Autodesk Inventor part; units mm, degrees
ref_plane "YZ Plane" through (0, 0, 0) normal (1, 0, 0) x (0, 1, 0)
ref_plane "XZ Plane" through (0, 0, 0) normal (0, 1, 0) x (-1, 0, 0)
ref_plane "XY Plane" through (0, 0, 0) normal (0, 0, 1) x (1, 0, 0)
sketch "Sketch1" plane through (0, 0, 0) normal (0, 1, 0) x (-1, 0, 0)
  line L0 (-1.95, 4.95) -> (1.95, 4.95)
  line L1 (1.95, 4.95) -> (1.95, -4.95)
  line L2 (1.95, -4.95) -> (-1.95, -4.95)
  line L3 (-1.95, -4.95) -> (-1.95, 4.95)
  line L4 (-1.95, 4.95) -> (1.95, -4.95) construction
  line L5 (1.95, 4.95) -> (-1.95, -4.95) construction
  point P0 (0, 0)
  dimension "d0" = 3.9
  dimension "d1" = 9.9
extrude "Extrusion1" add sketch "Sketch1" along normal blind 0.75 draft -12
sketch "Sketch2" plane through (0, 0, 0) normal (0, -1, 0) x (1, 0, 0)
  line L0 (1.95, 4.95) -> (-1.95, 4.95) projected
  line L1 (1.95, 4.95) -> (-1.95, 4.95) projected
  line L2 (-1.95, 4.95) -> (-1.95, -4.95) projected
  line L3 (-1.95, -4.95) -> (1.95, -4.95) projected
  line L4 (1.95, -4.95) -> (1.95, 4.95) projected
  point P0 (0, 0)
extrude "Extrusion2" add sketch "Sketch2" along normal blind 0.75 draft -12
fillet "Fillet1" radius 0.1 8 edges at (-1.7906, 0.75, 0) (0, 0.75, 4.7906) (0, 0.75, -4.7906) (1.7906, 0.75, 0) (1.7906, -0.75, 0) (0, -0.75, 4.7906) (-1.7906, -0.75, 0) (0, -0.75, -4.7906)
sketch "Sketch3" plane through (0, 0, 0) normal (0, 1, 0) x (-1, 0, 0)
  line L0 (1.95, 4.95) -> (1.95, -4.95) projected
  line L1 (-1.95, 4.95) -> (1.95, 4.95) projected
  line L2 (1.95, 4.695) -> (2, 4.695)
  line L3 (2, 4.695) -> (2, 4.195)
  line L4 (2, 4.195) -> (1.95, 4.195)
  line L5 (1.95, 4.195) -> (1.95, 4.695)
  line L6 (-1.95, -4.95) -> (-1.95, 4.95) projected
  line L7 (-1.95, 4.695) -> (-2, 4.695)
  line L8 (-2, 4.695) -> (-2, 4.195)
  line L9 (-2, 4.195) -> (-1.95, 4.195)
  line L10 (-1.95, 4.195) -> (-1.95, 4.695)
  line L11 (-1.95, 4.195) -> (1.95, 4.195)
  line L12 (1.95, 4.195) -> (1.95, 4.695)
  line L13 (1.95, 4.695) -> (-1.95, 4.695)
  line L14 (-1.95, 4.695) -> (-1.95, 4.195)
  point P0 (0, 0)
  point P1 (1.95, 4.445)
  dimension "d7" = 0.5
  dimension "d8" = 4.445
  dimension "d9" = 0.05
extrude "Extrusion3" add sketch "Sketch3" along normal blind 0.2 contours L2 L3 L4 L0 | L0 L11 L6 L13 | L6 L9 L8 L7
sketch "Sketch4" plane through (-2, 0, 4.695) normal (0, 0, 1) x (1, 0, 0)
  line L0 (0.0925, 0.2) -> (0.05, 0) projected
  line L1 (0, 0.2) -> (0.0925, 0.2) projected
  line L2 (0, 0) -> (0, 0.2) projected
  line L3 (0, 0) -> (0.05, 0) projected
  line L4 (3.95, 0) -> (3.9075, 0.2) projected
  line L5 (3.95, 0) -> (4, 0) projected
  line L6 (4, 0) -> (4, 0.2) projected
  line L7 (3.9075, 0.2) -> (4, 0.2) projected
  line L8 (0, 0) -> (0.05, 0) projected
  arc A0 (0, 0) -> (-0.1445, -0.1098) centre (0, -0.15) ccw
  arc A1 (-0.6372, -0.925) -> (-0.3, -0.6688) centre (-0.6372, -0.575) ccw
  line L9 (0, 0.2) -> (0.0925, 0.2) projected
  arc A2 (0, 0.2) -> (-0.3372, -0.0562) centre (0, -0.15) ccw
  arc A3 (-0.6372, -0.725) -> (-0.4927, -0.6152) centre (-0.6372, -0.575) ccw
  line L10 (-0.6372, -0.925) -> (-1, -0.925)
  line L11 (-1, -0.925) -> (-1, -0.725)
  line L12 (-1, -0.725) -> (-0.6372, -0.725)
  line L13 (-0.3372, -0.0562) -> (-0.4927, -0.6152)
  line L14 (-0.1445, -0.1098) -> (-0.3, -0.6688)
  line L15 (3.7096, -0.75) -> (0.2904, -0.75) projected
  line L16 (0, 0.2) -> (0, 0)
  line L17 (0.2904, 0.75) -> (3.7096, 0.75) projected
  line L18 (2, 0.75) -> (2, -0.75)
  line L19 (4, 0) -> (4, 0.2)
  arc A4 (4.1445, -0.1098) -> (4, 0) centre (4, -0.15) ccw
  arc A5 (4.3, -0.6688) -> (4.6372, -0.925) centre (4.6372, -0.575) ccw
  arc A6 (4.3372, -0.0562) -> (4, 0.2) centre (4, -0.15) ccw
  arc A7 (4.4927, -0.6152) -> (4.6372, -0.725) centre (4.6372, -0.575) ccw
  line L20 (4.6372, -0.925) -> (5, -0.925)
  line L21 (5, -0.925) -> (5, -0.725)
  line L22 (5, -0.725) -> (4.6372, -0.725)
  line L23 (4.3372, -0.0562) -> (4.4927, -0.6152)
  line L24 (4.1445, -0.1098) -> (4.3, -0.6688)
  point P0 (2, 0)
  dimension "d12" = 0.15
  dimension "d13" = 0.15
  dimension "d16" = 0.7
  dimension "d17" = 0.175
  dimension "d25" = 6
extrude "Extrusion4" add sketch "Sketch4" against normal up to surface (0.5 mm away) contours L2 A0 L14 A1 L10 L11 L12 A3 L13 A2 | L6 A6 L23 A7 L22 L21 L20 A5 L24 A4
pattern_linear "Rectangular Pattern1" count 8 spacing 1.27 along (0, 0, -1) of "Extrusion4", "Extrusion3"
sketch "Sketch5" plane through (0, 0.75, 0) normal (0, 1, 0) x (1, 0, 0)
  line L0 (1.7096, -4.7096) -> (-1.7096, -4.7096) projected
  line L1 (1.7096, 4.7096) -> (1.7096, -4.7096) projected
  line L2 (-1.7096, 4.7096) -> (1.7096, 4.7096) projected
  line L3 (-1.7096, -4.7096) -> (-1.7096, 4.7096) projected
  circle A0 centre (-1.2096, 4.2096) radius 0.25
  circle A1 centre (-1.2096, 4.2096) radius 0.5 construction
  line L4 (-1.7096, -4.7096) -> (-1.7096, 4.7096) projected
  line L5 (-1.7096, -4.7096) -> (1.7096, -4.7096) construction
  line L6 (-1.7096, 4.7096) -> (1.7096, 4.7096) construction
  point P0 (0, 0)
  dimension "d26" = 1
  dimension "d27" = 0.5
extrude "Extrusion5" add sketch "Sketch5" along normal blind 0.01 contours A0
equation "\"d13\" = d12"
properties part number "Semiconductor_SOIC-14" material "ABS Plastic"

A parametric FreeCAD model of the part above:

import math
import FreeCAD as App
import Part
import Sketcher

V = App.Vector


def edges_at(feature, points):
    """Names of the edges that pass closest to the given points."""
    edges = feature.Shape.Edges
    near = lambda p: min(range(len(edges)), key=lambda i: edges[i].distToShape(Part.Vertex(*p))[0])
    return sorted({f"Edge{near(p) + 1}" for p in points})


def add_polygon(sketch, points):
    """Adds a closed chain of lines whose ends are joined by coincident constraints."""
    first, n = sketch.GeometryCount, len(points)
    for a, b in zip(points, points[1:] + points[:1]):
        sketch.addGeometry(Part.LineSegment(App.Vector(*a, 0), App.Vector(*b, 0)), False)
    for i in range(n):
        sketch.addConstraint(Sketcher.Constraint("Coincident", first + i, 2, first + (i + 1) % n, 1))

doc = App.newDocument("Part")
params = doc.addObject("Spreadsheet::Sheet", "Params")
for row, (alias, value) in enumerate([
    ("sketch1_width", "3.9 mm"),
    ("sketch1_height", "9.9 mm"),
    ("pad1_length", "0.75 mm"),
    ("pad1_taper", "-12 deg"),
    ("sketch2_width", "3.9 mm"),
    ("sketch2_height", "9.9 mm"),
    ("pad2_length", "0.75 mm"),
    ("pad2_taper", "-12 deg"),
    ("fillet_radius", "0.1 mm"),
    ("sketch3_height", "0.5 mm"),
    ("sketch3_width", "4 mm"),
    ("pad3_length", "0.2 mm"),
    ("sketch4_radius", "0.35 mm"),
    ("sketch4_radius2", "0.15 mm"),
    ("pad4_length", "0.5 mm"),
    ("linearpattern_pitch", "1.27 mm"),
    ("sketch5_diameter", "0.5 mm"),
    ("pad5_length", "0.01 mm"),
], start=1):
    params.set(f"A{row}", alias)
    params.set(f"B{row}", "=" + value)
    params.setAlias(f"B{row}", alias)

body = doc.addObject("PartDesign::Body", "Body")

sketch1 = doc.addObject("Sketcher::SketchObject", "Sketch")
body.addObject(sketch1)
sketch1.AttachmentSupport = (doc.XZ_Plane, [""])
sketch1.MapMode = "FlatFace"
add_polygon(sketch1, [(-1.9, 5), (1.9, 5), (1.9, -5), (-1.9, -5)])
sketch1.addConstraint([
    Sketcher.Constraint("Horizontal", 0),
    Sketcher.Constraint("Vertical", 1),
    Sketcher.Constraint("Horizontal", 2),
    Sketcher.Constraint("Vertical", 3),
    Sketcher.Constraint("Symmetric", 0, 2, 2, 2, -1, 1),
    Sketcher.Constraint("DistanceX", 0, 1, 0, 2, 3.9),
    Sketcher.Constraint("DistanceY", 1, 2, 1, 1, 9.9),
])
sketch1.setExpression("Constraints[9]", "Params.sketch1_width")
sketch1.setExpression("Constraints[10]", "Params.sketch1_height")
pad1 = doc.addObject("PartDesign::Pad", "Pad")
body.addObject(pad1)
pad1.Profile = sketch1
pad1.setExpression("Length", "Params.pad1_length")
pad1.Reversed = True
pad1.setExpression("TaperAngle", "Params.pad1_taper")

sketch2 = doc.addObject("Sketcher::SketchObject", "Sketch001")
body.addObject(sketch2)
sketch2.AttachmentSupport = (doc.XZ_Plane, [""])
sketch2.MapMode = "FlatFace"
add_polygon(sketch2, [(1.9, -5), (1.9, 5), (-1.9, 5), (-1.9, -5)])
sketch2.addConstraint([
    Sketcher.Constraint("Vertical", 0),
    Sketcher.Constraint("Horizontal", 1),
    Sketcher.Constraint("Vertical", 2),
    Sketcher.Constraint("Horizontal", 3),
    Sketcher.Constraint("Symmetric", 0, 2, 2, 2, -1, 1),
    Sketcher.Constraint("DistanceX", 1, 2, 1, 1, 3.9),
    Sketcher.Constraint("DistanceY", 0, 1, 0, 2, 9.9),
])
sketch2.setExpression("Constraints[9]", "Params.sketch2_width")
sketch2.setExpression("Constraints[10]", "Params.sketch2_height")
pad2 = doc.addObject("PartDesign::Pad", "Pad001")
body.addObject(pad2)
pad2.Profile = sketch2
pad2.setExpression("Length", "Params.pad2_length")
pad2.setExpression("TaperAngle", "Params.pad2_taper")
doc.recompute()

fillet = doc.addObject("PartDesign::Fillet", "Fillet")
body.addObject(fillet)
fillet.Base = (pad2, edges_at(pad2, [
    (-1.791, 0.75, 0),
    (0, 0.75, 4.791),
    (0, 0.75, -4.791),
    (1.791, 0.75, 0),
    (1.791, -0.75, 0),
    (0, -0.75, 4.791),
    (-1.791, -0.75, 0),
    (0, -0.75, -4.791),
]))
fillet.setExpression("Radius", "Params.fillet_radius")

sketch3 = doc.addObject("Sketcher::SketchObject", "Sketch002")
body.addObject(sketch3)
sketch3.AttachmentSupport = (doc.XZ_Plane, [""])
sketch3.MapMode = "FlatFace"
add_polygon(sketch3, [(-2, 4.7), (2, 4.7), (2, 4.2), (-2, 4.2)])
sketch3.addConstraint([
    Sketcher.Constraint("Horizontal", 0),
    Sketcher.Constraint("Vertical", 1),
    Sketcher.Constraint("Horizontal", 2),
    Sketcher.Constraint("Vertical", 3),
    Sketcher.Constraint("DistanceY", 1, 2, 1, 1, 0.5),
    Sketcher.Constraint("DistanceX", 0, 1, 0, 2, 4.0),
    Sketcher.Constraint("DistanceX", -1, 1, 0, 2, 2.0),
    Sketcher.Constraint("DistanceY", -1, 1, 0, 2, 4.695),
])
sketch3.setExpression("Constraints[8]", "Params.sketch3_height")
sketch3.setExpression("Constraints[9]", "Params.sketch3_width")
pad3 = doc.addObject("PartDesign::Pad", "Pad002")
body.addObject(pad3)
pad3.Profile = sketch3
pad3.setExpression("Length", "Params.pad3_length")
pad3.Reversed = True

sketch4 = doc.addObject("Sketcher::SketchObject", "Sketch003")
body.addObject(sketch4)
sketch4.AttachmentSupport = (doc.XY_Plane, [""])
sketch4.MapMode = "FlatFace"
sketch4.AttachmentOffset = App.Placement(V(0, 0, 4.695), App.Rotation())
sketch4.addGeometry([
    Part.LineSegment(V(-2, 0, 0), V(-2, 0.2, 0)),
    Part.ArcOfCircle(Part.Circle(V(-2, -0.15, 0), V(0, 0, 1), 0.35), math.radians(90), math.radians(164)),
    Part.LineSegment(V(-2.34, -0.06, 0), V(-2.49, -0.62, 0)),
    Part.ArcOfCircle(Part.Circle(V(-2.64, -0.57, 0), V(0, 0, 1), 0.15), math.radians(-90), math.radians(-16)),
    Part.LineSegment(V(-2.64, -0.72, 0), V(-3, -0.72, 0)),
    Part.LineSegment(V(-3, -0.72, 0), V(-3, -0.93, 0)),
    Part.LineSegment(V(-3, -0.93, 0), V(-2.64, -0.93, 0)),
    Part.ArcOfCircle(Part.Circle(V(-2.64, -0.57, 0), V(0, 0, 1), 0.35), math.radians(-90), math.radians(-16)),
    Part.LineSegment(V(-2.3, -0.67, 0), V(-2.14, -0.11, 0)),
    Part.ArcOfCircle(Part.Circle(V(-2, -0.15, 0), V(0, 0, 1), 0.15), math.radians(90), math.radians(164)),
    Part.LineSegment(V(2, 0.2, 0), V(2, 0, 0)),
    Part.ArcOfCircle(Part.Circle(V(2, -0.15, 0), V(0, 0, 1), 0.15), math.radians(16), math.radians(90)),
    Part.LineSegment(V(2.14, -0.11, 0), V(2.3, -0.67, 0)),
    Part.ArcOfCircle(Part.Circle(V(2.64, -0.57, 0), V(0, 0, 1), 0.35), math.radians(-164), math.radians(-90)),
    Part.LineSegment(V(2.64, -0.93, 0), V(3, -0.93, 0)),
    Part.LineSegment(V(3, -0.93, 0), V(3, -0.72, 0)),
    Part.LineSegment(V(3, -0.72, 0), V(2.64, -0.72, 0)),
    Part.ArcOfCircle(Part.Circle(V(2.64, -0.57, 0), V(0, 0, 1), 0.15), math.radians(-164), math.radians(-90)),
    Part.LineSegment(V(2.49, -0.62, 0), V(2.34, -0.06, 0)),
    Part.ArcOfCircle(Part.Circle(V(2, -0.15, 0), V(0, 0, 1), 0.35), math.radians(16), math.radians(90)),
], False)
sketch4.addConstraint([
    Sketcher.Constraint("Coincident", 0, 2, 1, 1),
    Sketcher.Constraint("Tangent", 1, 2, 2, 1),
    Sketcher.Constraint("Tangent", 2, 2, 3, 2),
    Sketcher.Constraint("Tangent", 3, 1, 4, 1),
    Sketcher.Constraint("Coincident", 4, 2, 5, 1),
    Sketcher.Constraint("Coincident", 5, 2, 6, 1),
    Sketcher.Constraint("Tangent", 6, 2, 7, 1),
    Sketcher.Constraint("Tangent", 7, 2, 8, 1),
    Sketcher.Constraint("Tangent", 8, 2, 9, 2),
    Sketcher.Constraint("Coincident", 9, 1, 0, 1),
    Sketcher.Constraint("Coincident", 10, 2, 11, 2),
    Sketcher.Constraint("Tangent", 11, 1, 12, 1),
    Sketcher.Constraint("Tangent", 12, 2, 13, 1),
    Sketcher.Constraint("Tangent", 13, 2, 14, 1),
    Sketcher.Constraint("Coincident", 14, 2, 15, 1),
    Sketcher.Constraint("Coincident", 15, 2, 16, 1),
    Sketcher.Constraint("Tangent", 16, 2, 17, 2),
    Sketcher.Constraint("Tangent", 17, 1, 18, 1),
    Sketcher.Constraint("Tangent", 18, 2, 19, 1),
    Sketcher.Constraint("Coincident", 19, 2, 10, 1),
    Sketcher.Constraint("Vertical", 0),
    Sketcher.Constraint("Horizontal", 4),
    Sketcher.Constraint("Vertical", 5),
    Sketcher.Constraint("Horizontal", 6),
    Sketcher.Constraint("Vertical", 10),
    Sketcher.Constraint("Horizontal", 14),
    Sketcher.Constraint("Vertical", 15),
    Sketcher.Constraint("Horizontal", 16),
    Sketcher.Constraint("Coincident", 7, 3, 3, 3),
    Sketcher.Constraint("Coincident", 9, 3, 1, 3),
    Sketcher.Constraint("Coincident", 17, 3, 13, 3),
    Sketcher.Constraint("Coincident", 19, 3, 11, 3),
    Sketcher.Constraint("Equal", 1, 7),
    Sketcher.Constraint("Equal", 3, 9),
    Sketcher.Constraint("Equal", 9, 11),
    Sketcher.Constraint("Equal", 7, 13),
    Sketcher.Constraint("Equal", 11, 17),
    Sketcher.Constraint("Equal", 13, 19),
    Sketcher.Constraint("Symmetric", 9, 1, 10, 2, -1, 1),
    Sketcher.Constraint("Symmetric", 1, 3, 11, 3, -2),
    Sketcher.Constraint("Symmetric", 3, 3, 13, 3, -2),
    Sketcher.Constraint("Vertical", 9, 3, 0, 2),
    Sketcher.Constraint("Equal", 6, 14),
    Sketcher.Constraint("Radius", 1, 0.35),
    Sketcher.Constraint("Radius", 3, 0.15),
    Sketcher.Constraint("DistanceX", 12, 2, 14, 2, 0.7),
    Sketcher.Constraint("DistanceX", 1, 3, -1, 1, 2.0),
    Sketcher.Constraint("DistanceX", 4, 2, -1, 1, 3.0),
    Sketcher.Constraint("DistanceX", 4, 2, 4, 1, 0.3628),
])
sketch4.setExpression("Constraints[43]", "Params.sketch4_radius")
sketch4.setExpression("Constraints[44]", "Params.sketch4_radius2")
pad4 = doc.addObject("PartDesign::Pad", "Pad003")
body.addObject(pad4)
pad4.Profile = sketch4
pad4.setExpression("Length", "Params.pad4_length")
pad4.Reversed = True
doc.recompute()

linearpattern = doc.addObject("PartDesign::LinearPattern", "LinearPattern")
body.addObject(linearpattern)
linearpattern.Originals = [pad4, pad3]
linearpattern.Direction = (doc.Z_Axis, [""])
linearpattern.Mode = "offset"
linearpattern.setExpression("Offset", "Params.linearpattern_pitch")
linearpattern.Occurrences = 8
linearpattern.Reversed = True
body.Tip = linearpattern

sketch5 = doc.addObject("Sketcher::SketchObject", "Sketch004")
body.addObject(sketch5)
sketch5.AttachmentSupport = (doc.XZ_Plane, [""])
sketch5.MapMode = "FlatFace"
sketch5.AttachmentOffset = App.Placement(V(0, 0, -0.75), App.Rotation())
sketch5.addGeometry(Part.Circle(V(-1.21, -4.21, 0), V(0, 0, 1), 0.25), False)
sketch5.addConstraint([
    Sketcher.Constraint("Diameter", 0, 0.5),
    Sketcher.Constraint("DistanceX", 0, 3, -1, 1, 1.2096),
    Sketcher.Constraint("DistanceY", 0, 3, -1, 1, 4.2096),
])
sketch5.setExpression("Constraints[0]", "Params.sketch5_diameter")
pad5 = doc.addObject("PartDesign::Pad", "Pad004")
body.addObject(pad5)
pad5.Profile = sketch5
pad5.setExpression("Length", "Params.pad5_length")
pad5.Reversed = True

doc.recompute()
